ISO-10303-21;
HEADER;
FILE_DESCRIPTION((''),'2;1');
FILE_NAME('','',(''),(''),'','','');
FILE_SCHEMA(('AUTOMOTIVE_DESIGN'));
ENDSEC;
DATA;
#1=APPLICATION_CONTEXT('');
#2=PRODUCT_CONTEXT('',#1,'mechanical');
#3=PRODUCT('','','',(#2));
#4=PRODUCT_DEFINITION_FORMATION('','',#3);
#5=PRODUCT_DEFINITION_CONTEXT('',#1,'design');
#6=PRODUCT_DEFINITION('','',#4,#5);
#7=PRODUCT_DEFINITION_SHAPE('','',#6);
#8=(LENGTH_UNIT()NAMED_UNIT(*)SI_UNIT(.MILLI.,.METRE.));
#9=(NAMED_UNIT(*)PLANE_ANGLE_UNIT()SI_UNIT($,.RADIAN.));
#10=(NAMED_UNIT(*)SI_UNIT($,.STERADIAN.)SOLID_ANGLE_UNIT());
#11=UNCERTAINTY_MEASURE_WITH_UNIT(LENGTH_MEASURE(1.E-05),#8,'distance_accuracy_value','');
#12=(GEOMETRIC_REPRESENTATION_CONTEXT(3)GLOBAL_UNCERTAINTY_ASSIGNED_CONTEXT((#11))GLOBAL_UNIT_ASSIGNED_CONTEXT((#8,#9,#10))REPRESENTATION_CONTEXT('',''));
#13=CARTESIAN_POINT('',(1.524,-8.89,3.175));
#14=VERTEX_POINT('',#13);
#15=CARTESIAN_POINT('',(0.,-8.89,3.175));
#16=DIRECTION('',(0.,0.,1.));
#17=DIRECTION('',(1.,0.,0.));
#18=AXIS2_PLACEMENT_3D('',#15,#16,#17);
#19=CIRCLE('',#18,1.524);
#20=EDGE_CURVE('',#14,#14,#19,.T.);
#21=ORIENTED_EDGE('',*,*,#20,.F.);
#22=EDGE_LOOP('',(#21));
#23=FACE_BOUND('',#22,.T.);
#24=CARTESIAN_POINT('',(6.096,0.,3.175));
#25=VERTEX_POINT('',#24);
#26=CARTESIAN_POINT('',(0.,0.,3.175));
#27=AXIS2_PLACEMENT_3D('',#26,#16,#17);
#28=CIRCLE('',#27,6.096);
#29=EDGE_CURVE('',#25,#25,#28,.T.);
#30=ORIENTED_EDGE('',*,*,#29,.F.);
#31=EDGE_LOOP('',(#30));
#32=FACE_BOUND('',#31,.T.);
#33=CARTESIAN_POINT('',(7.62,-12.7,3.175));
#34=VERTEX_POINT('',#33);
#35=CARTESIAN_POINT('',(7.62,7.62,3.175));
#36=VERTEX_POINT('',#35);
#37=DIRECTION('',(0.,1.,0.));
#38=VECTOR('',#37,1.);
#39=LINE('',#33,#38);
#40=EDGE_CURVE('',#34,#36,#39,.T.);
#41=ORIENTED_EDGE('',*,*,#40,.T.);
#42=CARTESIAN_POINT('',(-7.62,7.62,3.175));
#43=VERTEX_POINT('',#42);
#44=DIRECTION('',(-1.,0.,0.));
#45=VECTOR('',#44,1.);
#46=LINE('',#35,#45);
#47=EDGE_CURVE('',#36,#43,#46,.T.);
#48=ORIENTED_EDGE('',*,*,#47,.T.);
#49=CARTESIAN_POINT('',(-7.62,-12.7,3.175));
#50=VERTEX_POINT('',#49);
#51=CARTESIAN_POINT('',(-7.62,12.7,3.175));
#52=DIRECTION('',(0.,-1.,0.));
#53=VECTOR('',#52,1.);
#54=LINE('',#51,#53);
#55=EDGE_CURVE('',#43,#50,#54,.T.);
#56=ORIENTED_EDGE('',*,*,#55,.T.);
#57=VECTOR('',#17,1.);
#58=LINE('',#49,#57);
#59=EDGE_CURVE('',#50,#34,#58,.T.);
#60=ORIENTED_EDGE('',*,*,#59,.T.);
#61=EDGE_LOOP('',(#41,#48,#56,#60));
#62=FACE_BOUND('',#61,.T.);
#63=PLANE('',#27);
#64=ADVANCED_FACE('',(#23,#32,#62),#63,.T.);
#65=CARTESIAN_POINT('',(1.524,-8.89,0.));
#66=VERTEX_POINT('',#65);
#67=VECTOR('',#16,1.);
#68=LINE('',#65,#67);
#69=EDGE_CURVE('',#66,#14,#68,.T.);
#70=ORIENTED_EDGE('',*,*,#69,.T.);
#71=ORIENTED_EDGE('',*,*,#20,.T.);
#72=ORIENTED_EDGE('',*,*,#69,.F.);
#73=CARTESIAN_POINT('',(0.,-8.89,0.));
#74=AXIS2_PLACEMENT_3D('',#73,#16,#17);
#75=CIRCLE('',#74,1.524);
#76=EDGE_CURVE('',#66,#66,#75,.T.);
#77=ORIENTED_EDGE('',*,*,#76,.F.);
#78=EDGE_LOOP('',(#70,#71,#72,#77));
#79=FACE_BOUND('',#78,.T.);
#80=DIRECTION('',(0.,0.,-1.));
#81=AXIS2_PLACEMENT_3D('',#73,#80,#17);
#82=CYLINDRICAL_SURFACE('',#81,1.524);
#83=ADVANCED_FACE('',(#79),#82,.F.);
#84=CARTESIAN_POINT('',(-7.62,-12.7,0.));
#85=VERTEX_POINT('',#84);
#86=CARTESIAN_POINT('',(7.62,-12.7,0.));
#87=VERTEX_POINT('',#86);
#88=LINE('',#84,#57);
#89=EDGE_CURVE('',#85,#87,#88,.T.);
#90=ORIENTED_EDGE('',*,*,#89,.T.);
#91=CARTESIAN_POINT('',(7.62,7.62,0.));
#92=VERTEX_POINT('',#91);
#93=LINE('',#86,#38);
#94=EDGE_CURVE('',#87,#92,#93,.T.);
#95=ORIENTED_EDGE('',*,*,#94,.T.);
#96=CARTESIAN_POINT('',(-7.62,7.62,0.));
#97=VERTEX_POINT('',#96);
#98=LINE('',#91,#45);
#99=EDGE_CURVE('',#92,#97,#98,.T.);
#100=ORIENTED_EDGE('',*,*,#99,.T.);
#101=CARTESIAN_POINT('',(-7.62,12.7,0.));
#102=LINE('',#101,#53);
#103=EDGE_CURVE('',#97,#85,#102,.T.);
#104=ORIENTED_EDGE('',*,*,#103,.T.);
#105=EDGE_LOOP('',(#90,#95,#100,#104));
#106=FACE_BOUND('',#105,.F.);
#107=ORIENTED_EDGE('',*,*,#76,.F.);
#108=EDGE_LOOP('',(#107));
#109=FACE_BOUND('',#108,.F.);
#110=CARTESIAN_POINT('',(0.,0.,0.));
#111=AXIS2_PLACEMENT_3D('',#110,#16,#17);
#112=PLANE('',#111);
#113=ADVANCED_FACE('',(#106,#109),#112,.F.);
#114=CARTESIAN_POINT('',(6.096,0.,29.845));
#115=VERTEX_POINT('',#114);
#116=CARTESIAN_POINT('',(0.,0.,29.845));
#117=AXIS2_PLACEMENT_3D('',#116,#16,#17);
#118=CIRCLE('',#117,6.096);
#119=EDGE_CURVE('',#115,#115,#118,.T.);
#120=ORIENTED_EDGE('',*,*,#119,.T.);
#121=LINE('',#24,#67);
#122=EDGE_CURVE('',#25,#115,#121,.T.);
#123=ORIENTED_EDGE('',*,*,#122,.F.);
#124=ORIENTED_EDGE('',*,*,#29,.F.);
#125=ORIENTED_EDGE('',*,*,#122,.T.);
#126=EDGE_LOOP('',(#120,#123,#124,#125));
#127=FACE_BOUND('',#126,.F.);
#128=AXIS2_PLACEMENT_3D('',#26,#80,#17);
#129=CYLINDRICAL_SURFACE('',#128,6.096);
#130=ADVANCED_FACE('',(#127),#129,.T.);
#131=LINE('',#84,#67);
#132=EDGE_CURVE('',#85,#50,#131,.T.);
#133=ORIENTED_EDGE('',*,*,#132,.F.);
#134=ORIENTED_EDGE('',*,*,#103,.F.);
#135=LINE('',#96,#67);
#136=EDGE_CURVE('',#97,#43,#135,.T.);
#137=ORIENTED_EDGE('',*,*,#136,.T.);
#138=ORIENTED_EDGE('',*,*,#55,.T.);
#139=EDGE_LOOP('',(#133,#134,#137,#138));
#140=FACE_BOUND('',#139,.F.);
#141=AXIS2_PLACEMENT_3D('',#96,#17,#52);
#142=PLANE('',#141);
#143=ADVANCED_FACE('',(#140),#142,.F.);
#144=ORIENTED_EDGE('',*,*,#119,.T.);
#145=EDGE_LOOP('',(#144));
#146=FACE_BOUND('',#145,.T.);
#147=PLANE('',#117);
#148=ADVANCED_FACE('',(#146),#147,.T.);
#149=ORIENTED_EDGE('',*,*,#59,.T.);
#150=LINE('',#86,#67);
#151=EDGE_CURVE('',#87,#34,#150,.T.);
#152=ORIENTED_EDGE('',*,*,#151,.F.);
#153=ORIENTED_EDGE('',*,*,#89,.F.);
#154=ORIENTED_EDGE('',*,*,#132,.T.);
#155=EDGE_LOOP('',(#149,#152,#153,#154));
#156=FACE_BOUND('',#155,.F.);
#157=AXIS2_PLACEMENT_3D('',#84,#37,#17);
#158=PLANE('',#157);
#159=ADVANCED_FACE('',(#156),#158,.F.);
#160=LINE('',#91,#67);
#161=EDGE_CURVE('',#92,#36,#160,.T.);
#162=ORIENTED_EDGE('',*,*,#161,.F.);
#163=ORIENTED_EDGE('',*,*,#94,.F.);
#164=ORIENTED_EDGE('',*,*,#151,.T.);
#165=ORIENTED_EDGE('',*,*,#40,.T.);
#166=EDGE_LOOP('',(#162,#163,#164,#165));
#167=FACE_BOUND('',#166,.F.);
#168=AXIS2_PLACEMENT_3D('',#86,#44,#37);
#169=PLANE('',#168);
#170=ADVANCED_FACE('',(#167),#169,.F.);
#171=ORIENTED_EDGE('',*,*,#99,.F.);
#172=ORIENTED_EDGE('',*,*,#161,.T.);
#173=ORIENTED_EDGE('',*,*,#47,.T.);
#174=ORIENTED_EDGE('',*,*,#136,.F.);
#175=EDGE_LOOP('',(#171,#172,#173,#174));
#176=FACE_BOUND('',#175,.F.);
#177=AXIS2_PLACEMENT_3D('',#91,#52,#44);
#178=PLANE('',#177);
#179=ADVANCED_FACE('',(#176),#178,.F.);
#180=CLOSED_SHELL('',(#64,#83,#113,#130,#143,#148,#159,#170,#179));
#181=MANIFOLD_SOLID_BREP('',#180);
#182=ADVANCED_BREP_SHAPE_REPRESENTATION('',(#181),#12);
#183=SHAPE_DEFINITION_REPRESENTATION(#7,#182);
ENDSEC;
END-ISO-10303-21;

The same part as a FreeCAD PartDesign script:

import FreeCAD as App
import Part
import Sketcher

V = App.Vector
Q = App.Units.Quantity

doc = App.newDocument("Part")
body = doc.addObject("PartDesign::Body", "Body")

# Sketch on XY plane
sketch1 = doc.addObject("Sketcher::SketchObject", "Sketch")
body.addObject(sketch1)
sketch1.AttachmentSupport = (doc.XY_Plane, [""])
sketch1.MapMode = "FlatFace"
sketch1.addGeometry(Part.LineSegment(V(7.6, -12.7, 0), V(7.6, 7.6, 0)), False)
sketch1.addGeometry(Part.LineSegment(V(7.6, 7.6, 0), V(-7.6, 7.6, 0)), False)
sketch1.addGeometry(Part.LineSegment(V(-7.6, 7.6, 0), V(-7.6, -12.7, 0)), False)
sketch1.addGeometry(Part.LineSegment(V(-7.6, -12.7, 0), V(7.6, -12.7, 0)), False)
sketch1.addGeometry(Part.Circle(V(0, -8.9, 0), V(0, 0, 1), 1.5), False)
sketch1.addConstraint(Sketcher.Constraint("Coincident", 0, 2, 1, 1))
sketch1.addConstraint(Sketcher.Constraint("Coincident", 1, 2, 2, 1))
sketch1.addConstraint(Sketcher.Constraint("Coincident", 2, 2, 3, 1))
sketch1.addConstraint(Sketcher.Constraint("Coincident", 3, 2, 0, 1))
sketch1.addConstraint(Sketcher.Constraint("Vertical", 0))
sketch1.addConstraint(Sketcher.Constraint("Horizontal", 1))
sketch1.addConstraint(Sketcher.Constraint("Vertical", 2))
sketch1.addConstraint(Sketcher.Constraint("Horizontal", 3))
sketch1.addConstraint(Sketcher.Constraint("PointOnObject", 4, 3, -2))
sketch1.addConstraint(Sketcher.Constraint("Diameter", 4, Q("0.12 in")))
sketch1.addConstraint(Sketcher.Constraint("DistanceX", 1, 2, 1, 1, Q("0.6 in")))
sketch1.addConstraint(Sketcher.Constraint("DistanceX", -1, 1, 0, 2, Q("0.3 in")))
sketch1.addConstraint(Sketcher.Constraint("DistanceY", -1, 1, 0, 2, Q("0.3 in")))
sketch1.addConstraint(Sketcher.Constraint("DistanceY", 4, 3, -1, 1, Q("0.35 in")))
sketch1.addConstraint(Sketcher.Constraint("DistanceY", 0, 1, 0, 2, Q("0.8 in")))
pad1 = doc.addObject("PartDesign::Pad", "Pad")
body.addObject(pad1)
pad1.Profile = sketch1
pad1.Length = Q("0.125 in")

# Sketch on XY plane
sketch2 = doc.addObject("Sketcher::SketchObject", "Sketch001")
body.addObject(sketch2)
sketch2.AttachmentSupport = (doc.XY_Plane, [""])
sketch2.MapMode = "FlatFace"
sketch2.AttachmentOffset = App.Placement(V(0, 0, 0.125 * 25.4), App.Rotation())
sketch2.addGeometry(Part.Circle(V(0, 0, 0), V(0, 0, 1), 6), False)
sketch2.addConstraint(Sketcher.Constraint("Coincident", 0, 3, -1, 1))
sketch2.addConstraint(Sketcher.Constraint("Diameter", 0, Q("0.48 in")))
pad2 = doc.addObject("PartDesign::Pad", "Pad001")
body.addObject(pad2)
pad2.Profile = sketch2
pad2.Length = Q("1.05 in")

doc.recompute()
